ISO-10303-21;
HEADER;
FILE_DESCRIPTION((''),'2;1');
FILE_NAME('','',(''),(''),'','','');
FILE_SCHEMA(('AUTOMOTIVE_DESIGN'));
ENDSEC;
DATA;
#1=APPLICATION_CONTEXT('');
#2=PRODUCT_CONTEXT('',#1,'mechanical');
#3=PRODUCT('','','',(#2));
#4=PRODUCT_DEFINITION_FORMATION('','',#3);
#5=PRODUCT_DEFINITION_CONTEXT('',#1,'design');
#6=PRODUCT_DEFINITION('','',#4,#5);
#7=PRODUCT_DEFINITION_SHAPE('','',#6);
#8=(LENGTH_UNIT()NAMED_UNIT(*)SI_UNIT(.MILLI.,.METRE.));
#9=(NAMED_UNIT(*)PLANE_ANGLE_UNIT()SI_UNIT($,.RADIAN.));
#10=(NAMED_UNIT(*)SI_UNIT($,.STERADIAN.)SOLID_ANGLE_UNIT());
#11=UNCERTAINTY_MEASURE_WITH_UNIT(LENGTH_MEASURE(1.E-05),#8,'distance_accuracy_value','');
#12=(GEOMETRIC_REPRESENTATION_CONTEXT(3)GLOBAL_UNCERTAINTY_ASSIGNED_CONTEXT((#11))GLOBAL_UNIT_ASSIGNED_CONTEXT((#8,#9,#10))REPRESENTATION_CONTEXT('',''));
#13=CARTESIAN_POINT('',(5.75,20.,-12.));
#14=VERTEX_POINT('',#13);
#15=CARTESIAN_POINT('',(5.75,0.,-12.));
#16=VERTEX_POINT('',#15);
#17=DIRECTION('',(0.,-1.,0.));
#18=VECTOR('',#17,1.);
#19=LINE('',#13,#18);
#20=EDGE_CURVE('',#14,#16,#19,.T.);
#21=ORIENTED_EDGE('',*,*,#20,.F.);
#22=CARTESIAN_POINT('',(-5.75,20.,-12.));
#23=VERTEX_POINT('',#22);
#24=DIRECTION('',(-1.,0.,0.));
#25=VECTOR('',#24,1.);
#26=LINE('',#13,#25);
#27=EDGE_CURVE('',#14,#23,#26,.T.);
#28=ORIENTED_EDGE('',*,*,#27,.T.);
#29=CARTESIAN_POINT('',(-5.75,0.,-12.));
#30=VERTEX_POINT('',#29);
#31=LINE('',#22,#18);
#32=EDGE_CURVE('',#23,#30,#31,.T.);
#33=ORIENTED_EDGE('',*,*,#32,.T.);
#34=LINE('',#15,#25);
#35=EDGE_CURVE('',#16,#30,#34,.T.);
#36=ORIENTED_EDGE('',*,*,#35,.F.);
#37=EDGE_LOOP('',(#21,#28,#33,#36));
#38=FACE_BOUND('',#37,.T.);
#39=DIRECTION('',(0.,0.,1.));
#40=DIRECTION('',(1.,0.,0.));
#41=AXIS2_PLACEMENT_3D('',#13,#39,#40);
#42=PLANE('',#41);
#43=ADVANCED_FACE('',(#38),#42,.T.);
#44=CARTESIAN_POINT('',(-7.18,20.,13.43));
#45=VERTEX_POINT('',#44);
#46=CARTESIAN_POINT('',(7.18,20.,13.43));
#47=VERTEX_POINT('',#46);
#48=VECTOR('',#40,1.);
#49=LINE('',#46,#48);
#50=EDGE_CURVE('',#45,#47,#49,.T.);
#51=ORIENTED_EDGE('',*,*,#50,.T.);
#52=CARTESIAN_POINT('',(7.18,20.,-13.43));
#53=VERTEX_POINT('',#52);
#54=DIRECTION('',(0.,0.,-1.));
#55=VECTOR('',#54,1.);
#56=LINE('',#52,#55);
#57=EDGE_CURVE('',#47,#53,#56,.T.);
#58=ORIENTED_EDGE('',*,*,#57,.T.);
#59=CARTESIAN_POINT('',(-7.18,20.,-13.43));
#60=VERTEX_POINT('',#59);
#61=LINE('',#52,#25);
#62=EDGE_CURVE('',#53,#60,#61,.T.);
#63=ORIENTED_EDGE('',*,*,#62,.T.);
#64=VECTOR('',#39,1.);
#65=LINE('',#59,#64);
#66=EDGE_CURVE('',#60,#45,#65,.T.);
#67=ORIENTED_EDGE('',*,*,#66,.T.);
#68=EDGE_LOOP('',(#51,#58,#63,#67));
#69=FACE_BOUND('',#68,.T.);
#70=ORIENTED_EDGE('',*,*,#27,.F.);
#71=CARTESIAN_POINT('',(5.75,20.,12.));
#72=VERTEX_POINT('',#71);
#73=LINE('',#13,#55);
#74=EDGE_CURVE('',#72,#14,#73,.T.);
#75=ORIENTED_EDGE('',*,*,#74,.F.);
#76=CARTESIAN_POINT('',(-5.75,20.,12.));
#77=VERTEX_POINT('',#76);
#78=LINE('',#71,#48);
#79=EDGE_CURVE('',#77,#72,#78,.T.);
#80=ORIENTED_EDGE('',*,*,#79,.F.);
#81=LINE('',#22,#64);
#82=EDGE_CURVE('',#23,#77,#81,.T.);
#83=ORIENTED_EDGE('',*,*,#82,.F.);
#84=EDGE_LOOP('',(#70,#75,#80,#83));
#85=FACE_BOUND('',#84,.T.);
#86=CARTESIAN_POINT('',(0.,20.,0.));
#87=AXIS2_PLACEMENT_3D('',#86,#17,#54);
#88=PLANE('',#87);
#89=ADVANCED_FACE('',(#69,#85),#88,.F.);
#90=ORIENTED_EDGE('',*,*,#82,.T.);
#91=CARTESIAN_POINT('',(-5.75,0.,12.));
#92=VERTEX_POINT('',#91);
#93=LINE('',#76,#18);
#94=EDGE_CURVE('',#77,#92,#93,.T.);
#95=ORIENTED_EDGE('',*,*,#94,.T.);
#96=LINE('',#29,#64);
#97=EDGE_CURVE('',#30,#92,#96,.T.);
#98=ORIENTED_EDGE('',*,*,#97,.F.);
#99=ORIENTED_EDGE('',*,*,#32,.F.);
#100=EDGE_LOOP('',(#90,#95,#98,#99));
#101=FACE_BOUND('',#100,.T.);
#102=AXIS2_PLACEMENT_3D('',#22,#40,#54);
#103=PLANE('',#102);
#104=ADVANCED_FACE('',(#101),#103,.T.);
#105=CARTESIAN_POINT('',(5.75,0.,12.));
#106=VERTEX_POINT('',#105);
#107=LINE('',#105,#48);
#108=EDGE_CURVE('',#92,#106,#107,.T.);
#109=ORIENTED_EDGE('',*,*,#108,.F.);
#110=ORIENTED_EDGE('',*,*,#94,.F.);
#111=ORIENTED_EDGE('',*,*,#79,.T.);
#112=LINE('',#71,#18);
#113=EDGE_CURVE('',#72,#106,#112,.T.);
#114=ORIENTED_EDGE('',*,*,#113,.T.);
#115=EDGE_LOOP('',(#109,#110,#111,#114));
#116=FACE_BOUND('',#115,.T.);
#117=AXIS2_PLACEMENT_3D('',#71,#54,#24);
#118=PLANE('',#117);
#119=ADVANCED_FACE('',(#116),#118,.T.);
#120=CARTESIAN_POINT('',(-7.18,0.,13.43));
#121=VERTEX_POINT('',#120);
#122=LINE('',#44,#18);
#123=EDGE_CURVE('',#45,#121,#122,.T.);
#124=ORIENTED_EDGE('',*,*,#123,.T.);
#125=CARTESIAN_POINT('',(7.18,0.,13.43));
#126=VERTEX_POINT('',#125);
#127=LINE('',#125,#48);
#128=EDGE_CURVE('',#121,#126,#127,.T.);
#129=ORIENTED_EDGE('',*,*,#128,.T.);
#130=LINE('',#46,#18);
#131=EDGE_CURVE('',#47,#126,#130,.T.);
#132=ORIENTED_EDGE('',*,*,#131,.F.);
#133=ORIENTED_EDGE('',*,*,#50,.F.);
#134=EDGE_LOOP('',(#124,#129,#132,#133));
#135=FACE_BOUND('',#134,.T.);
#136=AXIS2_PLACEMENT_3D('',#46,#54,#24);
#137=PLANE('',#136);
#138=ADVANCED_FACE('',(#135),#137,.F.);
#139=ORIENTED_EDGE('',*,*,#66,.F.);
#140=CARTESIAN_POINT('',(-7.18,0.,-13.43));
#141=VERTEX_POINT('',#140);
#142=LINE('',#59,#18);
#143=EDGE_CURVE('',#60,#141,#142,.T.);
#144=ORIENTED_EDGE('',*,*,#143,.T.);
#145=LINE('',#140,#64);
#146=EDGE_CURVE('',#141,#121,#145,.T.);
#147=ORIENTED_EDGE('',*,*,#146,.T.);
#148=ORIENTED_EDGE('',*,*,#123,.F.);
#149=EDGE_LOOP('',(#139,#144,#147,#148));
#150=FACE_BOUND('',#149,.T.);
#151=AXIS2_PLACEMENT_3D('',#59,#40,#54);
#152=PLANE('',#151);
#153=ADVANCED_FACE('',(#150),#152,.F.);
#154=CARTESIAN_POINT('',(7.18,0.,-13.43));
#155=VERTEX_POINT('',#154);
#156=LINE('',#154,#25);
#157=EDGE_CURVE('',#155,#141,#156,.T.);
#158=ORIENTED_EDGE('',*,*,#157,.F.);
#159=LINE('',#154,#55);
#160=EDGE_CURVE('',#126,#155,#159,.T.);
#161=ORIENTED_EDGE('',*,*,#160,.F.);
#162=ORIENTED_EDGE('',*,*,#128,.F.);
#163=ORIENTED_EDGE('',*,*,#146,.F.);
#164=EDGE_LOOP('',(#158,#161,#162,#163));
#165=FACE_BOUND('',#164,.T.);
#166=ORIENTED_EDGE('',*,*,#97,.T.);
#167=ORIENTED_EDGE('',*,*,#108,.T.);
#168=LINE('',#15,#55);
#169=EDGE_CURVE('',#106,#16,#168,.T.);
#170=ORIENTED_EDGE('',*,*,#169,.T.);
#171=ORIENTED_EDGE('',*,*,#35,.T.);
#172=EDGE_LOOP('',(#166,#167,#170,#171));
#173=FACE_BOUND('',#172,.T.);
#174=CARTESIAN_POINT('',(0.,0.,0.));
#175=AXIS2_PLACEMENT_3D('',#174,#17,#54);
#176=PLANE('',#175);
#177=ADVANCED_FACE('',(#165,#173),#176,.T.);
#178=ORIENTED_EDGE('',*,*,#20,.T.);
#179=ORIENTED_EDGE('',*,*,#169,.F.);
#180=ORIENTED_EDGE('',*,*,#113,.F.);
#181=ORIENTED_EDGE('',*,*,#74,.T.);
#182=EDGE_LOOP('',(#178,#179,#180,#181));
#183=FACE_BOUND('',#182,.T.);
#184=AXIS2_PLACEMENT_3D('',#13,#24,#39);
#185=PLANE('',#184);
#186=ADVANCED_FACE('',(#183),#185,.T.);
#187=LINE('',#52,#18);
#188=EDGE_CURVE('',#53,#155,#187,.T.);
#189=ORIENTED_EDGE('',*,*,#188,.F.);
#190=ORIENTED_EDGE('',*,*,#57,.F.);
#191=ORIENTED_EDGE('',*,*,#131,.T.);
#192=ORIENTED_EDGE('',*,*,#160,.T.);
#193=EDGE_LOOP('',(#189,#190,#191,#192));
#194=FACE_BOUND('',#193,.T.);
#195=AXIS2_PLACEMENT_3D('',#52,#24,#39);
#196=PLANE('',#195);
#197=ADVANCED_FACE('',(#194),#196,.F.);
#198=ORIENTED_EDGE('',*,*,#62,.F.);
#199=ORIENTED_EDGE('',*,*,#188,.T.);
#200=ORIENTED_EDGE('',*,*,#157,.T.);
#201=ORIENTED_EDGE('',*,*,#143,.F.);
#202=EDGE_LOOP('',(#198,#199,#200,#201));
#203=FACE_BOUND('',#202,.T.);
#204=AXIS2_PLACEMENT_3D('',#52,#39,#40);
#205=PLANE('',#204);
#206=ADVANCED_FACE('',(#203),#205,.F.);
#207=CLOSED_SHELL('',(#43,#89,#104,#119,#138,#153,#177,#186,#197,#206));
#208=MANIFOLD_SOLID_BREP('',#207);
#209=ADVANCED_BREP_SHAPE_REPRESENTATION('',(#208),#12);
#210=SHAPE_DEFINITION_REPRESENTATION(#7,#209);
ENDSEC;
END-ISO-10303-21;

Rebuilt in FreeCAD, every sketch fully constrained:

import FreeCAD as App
import Part
import Sketcher
from FreeCAD import Vector
Q = App.Units.Quantity


def add_polygon(sketch, points):
    """Adds a closed chain of lines whose ends are joined by coincident constraints."""
    first, n = sketch.GeometryCount, len(points)
    for a, b in zip(points, points[1:] + points[:1]):
        sketch.addGeometry(Part.LineSegment(App.Vector(*a, 0), App.Vector(*b, 0)), False)
    for i in range(n):
        sketch.addConstraint(Sketcher.Constraint("Coincident", first + i, 2, first + (i + 1) % n, 1))

doc = App.newDocument("Part")
params = doc.addObject("Spreadsheet::Sheet", "Params")
for row, (alias, value) in enumerate([
    ("sketch1_height", "24 mm"),
    ("sketch1_width", "11.5 mm"),
    ("sketch1_width2", "14.36 mm"),
    ("sketch1_height2", "26.86 mm"),
    ("pad1_length", "20 mm"),
], start=1):
    params.set(f"A{row}", alias)
    params.set(f"B{row}", "=" + value)
    params.setAlias(f"B{row}", alias)

body = doc.addObject("PartDesign::Body", "Body")

# Sketch on XZ plane
sketch1 = body.newObject("Sketcher::SketchObject", "Sketch")
sketch1.AttachmentSupport = (doc.getObject("XZ_Plane"), [""])
sketch1.MapMode = "FlatFace"
add_polygon(sketch1, [(-7, -13), (-7, 13), (7, 13), (7, -13)])  # lines 0-3
add_polygon(sketch1, [(6, 12), (-6, 12), (-6, -12), (6, -12)])  # lines 4-7
sketch1.addConstraint([
    Sketcher.Constraint("Vertical", 0),
    Sketcher.Constraint("Horizontal", 1),
    Sketcher.Constraint("Vertical", 2),
    Sketcher.Constraint("Horizontal", 3),
    Sketcher.Constraint("Horizontal", 4),
    Sketcher.Constraint("Vertical", 5),
    Sketcher.Constraint("Horizontal", 6),
    Sketcher.Constraint("Vertical", 7),
    Sketcher.Constraint("Symmetric", 0, 2, 2, 2, -1, 1),
    Sketcher.Constraint("Symmetric", 4, 2, 6, 2, -1, 1),
    Sketcher.Constraint("DistanceY", 5, 2, 5, 1, Q("24 mm")),
    Sketcher.Constraint("DistanceX", 4, 2, 4, 1, Q("11.5 mm")),
    Sketcher.Constraint("DistanceX", 1, 1, 1, 2, Q("14.36 mm")),
    Sketcher.Constraint("DistanceY", 0, 1, 0, 2, Q("26.86 mm")),
])
sketch1.setExpression("Constraints[18]", "Params.sketch1_height")
sketch1.setExpression("Constraints[19]", "Params.sketch1_width")
sketch1.setExpression("Constraints[20]", "Params.sketch1_width2")
sketch1.setExpression("Constraints[21]", "Params.sketch1_height2")
pad1 = body.newObject("PartDesign::Pad", "Pad")
pad1.Profile = sketch1
pad1.setExpression("Length", "Params.pad1_length")
pad1.Reversed = True

doc.recompute()
